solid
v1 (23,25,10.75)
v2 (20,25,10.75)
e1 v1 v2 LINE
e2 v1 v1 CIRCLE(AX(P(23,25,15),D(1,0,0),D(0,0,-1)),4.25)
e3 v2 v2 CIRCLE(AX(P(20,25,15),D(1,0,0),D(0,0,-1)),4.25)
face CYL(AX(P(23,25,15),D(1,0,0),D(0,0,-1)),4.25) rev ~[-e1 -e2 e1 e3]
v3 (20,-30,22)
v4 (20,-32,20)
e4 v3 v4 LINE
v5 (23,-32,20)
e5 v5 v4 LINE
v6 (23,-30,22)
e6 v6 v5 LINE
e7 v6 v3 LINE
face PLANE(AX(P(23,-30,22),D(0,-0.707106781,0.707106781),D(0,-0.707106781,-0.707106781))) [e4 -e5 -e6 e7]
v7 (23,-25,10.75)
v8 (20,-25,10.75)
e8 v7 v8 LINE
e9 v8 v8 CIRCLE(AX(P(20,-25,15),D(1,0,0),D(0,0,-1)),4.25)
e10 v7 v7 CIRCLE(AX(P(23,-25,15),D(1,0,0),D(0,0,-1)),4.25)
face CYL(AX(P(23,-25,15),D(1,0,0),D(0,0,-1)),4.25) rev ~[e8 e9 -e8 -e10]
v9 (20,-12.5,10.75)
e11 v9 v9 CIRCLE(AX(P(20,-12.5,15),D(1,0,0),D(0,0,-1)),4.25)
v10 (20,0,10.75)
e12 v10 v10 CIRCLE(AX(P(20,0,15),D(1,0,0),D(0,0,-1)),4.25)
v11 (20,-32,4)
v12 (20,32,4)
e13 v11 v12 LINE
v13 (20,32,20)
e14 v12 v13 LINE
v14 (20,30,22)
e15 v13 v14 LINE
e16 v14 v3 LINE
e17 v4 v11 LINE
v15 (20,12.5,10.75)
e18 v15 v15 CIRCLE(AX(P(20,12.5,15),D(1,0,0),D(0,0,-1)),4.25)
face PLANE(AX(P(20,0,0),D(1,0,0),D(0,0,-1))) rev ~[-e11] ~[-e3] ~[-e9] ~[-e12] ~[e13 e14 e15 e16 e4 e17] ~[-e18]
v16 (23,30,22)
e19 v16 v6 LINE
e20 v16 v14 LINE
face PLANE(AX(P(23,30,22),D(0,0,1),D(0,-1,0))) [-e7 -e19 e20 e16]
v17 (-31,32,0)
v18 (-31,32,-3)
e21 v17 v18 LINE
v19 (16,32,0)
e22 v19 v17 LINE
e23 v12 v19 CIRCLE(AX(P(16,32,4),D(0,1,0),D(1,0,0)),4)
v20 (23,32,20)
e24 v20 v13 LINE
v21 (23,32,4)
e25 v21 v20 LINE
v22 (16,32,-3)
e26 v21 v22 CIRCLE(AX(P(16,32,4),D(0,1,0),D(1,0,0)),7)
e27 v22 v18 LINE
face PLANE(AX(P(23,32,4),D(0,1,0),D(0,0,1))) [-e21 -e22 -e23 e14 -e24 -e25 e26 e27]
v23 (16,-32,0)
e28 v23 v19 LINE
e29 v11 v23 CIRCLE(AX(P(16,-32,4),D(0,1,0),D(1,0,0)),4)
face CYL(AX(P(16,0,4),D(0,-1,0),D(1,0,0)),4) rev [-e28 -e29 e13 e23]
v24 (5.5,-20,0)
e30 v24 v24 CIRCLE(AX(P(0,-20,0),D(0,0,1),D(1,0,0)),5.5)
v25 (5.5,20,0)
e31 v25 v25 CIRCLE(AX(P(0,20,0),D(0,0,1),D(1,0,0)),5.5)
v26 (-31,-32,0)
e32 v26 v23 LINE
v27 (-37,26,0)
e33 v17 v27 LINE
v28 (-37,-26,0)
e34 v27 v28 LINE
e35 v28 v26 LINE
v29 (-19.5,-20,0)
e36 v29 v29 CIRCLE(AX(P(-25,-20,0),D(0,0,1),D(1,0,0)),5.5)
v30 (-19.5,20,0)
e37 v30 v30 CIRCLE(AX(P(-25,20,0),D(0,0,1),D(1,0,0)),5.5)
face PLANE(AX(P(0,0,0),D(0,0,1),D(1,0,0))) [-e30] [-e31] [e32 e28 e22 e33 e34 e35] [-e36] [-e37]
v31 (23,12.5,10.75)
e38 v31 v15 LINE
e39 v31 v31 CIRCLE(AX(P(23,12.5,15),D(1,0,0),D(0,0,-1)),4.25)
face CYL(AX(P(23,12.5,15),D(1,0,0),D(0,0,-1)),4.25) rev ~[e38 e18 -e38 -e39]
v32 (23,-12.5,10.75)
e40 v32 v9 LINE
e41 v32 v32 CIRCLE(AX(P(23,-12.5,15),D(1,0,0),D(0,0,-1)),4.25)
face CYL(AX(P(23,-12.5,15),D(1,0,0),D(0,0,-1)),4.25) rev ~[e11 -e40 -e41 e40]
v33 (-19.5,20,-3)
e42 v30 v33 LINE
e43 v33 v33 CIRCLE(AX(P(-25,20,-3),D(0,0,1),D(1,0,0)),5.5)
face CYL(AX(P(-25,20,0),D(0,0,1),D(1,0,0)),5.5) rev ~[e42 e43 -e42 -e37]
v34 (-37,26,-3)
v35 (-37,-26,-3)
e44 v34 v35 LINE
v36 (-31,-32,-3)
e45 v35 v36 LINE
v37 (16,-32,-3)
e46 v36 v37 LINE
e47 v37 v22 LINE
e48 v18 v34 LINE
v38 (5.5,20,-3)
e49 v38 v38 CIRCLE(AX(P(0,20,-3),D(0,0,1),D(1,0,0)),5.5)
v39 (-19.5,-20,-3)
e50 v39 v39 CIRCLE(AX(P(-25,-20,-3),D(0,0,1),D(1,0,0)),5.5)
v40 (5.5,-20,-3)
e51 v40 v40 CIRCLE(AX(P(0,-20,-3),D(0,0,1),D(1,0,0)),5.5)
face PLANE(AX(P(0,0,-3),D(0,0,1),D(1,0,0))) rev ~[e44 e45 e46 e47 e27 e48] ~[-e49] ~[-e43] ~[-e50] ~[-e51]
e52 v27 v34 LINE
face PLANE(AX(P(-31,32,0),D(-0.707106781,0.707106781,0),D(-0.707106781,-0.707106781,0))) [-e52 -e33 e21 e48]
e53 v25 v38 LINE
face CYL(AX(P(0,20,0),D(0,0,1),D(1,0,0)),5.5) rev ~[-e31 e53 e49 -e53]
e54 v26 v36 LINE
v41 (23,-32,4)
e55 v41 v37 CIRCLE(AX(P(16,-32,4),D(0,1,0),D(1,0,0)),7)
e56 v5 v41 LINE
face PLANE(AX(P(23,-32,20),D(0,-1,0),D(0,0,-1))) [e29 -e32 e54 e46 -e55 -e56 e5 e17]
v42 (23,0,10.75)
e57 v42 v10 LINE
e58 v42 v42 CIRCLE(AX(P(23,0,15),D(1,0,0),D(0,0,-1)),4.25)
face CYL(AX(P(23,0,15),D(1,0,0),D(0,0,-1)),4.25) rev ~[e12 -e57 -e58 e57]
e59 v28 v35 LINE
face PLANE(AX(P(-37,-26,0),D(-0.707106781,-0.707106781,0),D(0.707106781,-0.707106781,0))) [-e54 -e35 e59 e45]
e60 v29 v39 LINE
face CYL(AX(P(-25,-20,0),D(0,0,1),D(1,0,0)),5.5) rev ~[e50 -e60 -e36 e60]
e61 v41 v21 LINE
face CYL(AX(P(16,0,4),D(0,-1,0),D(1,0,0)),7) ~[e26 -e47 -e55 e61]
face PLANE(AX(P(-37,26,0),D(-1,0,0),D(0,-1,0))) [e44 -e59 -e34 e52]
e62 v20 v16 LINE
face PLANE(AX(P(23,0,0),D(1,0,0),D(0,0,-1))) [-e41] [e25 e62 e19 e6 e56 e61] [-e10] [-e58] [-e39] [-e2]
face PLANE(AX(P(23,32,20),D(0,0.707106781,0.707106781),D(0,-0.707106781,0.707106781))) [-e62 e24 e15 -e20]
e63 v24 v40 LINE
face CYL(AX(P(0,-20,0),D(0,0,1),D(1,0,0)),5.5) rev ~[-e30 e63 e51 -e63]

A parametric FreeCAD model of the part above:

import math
import FreeCAD as App
import Part
import Sketcher
from FreeCAD import Vector

doc = App.newDocument("Part")
body = doc.addObject("PartDesign::Body", "Body")

sketch1 = body.newObject("Sketcher::SketchObject", "Sketch")
sketch1.AttachmentSupport = (doc.getObject("XY_Plane"), [""])
sketch1.MapMode = "FlatFace"
sketch1.addGeometry(Part.LineSegment(Vector(-31, 32, 0), Vector(-37, 26, 0)), False)
sketch1.addGeometry(Part.LineSegment(Vector(-37, 26, 0), Vector(-37, -26, 0)), False)
sketch1.addGeometry(Part.LineSegment(Vector(-37, -26, 0), Vector(-31, -32, 0)), False)
sketch1.addGeometry(Part.LineSegment(Vector(-31, -32, 0), Vector(16, -32, 0)), False)
sketch1.addGeometry(Part.LineSegment(Vector(16, -32, 0), Vector(16, 32, 0)), False)
sketch1.addGeometry(Part.LineSegment(Vector(16, 32, 0), Vector(-31, 32, 0)), False)
sketch1.addGeometry(Part.Circle(Vector(-25, -20, 0), Vector(0, 0, 1), 5.5), False)
sketch1.addGeometry(Part.Circle(Vector(0, -20, 0), Vector(0, 0, 1), 5.5), False)
sketch1.addGeometry(Part.Circle(Vector(-25, 20, 0), Vector(0, 0, 1), 5.5), False)
sketch1.addGeometry(Part.Circle(Vector(0, 20, 0), Vector(0, 0, 1), 5.5), False)
sketch1.addConstraint(Sketcher.Constraint("Coincident", 0, 2, 1, 1))
sketch1.addConstraint(Sketcher.Constraint("Coincident", 1, 2, 2, 1))
sketch1.addConstraint(Sketcher.Constraint("Coincident", 2, 2, 3, 1))
sketch1.addConstraint(Sketcher.Constraint("Coincident", 3, 2, 4, 1))
sketch1.addConstraint(Sketcher.Constraint("Coincident", 4, 2, 5, 1))
sketch1.addConstraint(Sketcher.Constraint("Coincident", 5, 2, 0, 1))
sketch1.addConstraint(Sketcher.Constraint("Vertical", 1))
sketch1.addConstraint(Sketcher.Constraint("Horizontal", 3))
sketch1.addConstraint(Sketcher.Constraint("Vertical", 4))
sketch1.addConstraint(Sketcher.Constraint("Horizontal", 5))
sketch1.addConstraint(Sketcher.Constraint("Equal", 6, 7))
sketch1.addConstraint(Sketcher.Constraint("Equal", 7, 8))
sketch1.addConstraint(Sketcher.Constraint("Equal", 8, 9))
sketch1.addConstraint(Sketcher.Constraint("Symmetric", 7, 3, 9, 3, -1, 1))
sketch1.addConstraint(Sketcher.Constraint("Symmetric", 6, 3, 8, 3, -1))
sketch1.addConstraint(Sketcher.Constraint("Symmetric", 2, 2, 5, 2, -1))
sketch1.addConstraint(Sketcher.Constraint("PointOnObject", 7, 3, -2))
sketch1.addConstraint(Sketcher.Constraint("Perpendicular", 0, 2))
sketch1.addConstraint(Sketcher.Constraint("Horizontal", 6, 3, 7, 3))
sketch1.addConstraint(Sketcher.Constraint("Equal", 0, 2))
sketch1.addConstraint(Sketcher.Constraint("Diameter", 6, 11.0))
sketch1.addConstraint(Sketcher.Constraint("DistanceX", 3, 1, 3, 2, 47.0))
sketch1.addConstraint(Sketcher.Constraint("DistanceY", 1, 2, 1, 1, 52.0))
sketch1.addConstraint(Sketcher.Constraint("DistanceY", 4, 1, 4, 2, 64.0))
sketch1.addConstraint(Sketcher.Constraint("DistanceX", 6, 3, -1, 1, 25.0))
sketch1.addConstraint(Sketcher.Constraint("DistanceY", 6, 3, -1, 1, 20.0))
sketch1.addConstraint(Sketcher.Constraint("DistanceX", 0, 2, -1, 1, 37.0))
pad1 = body.newObject("PartDesign::Pad", "Pad")
pad1.Profile = sketch1
pad1.Length = 3
pad1.Reversed = True

sketch2 = body.newObject("Sketcher::SketchObject", "Sketch001")
sketch2.AttachmentSupport = (doc.getObject("XZ_Plane"), [""])
sketch2.MapMode = "FlatFace"
sketch2.addGeometry(Part.ArcOfCircle(Part.Circle(Vector(16, 4, 0), Vector(0, 0, 1), 4), math.radians(-90), math.radians(0)), False)
sketch2.addGeometry(Part.LineSegment(Vector(20, 4, 0), Vector(23, 4, 0)), False)
sketch2.addGeometry(Part.ArcOfCircle(Part.Circle(Vector(16, 4, 0), Vector(0, 0, 1), 7), math.radians(-90), math.radians(0)), False)
sketch2.addGeometry(Part.LineSegment(Vector(16, -3, 0), Vector(16, 0, 0)), False)
sketch2.addConstraint(Sketcher.Constraint("Coincident", 0, 2, 1, 1))
sketch2.addConstraint(Sketcher.Constraint("Coincident", 1, 2, 2, 2))
sketch2.addConstraint(Sketcher.Constraint("Coincident", 2, 1, 3, 1))
sketch2.addConstraint(Sketcher.Constraint("Coincident", 3, 2, 0, 1))
sketch2.addConstraint(Sketcher.Constraint("Horizontal", 1))
sketch2.addConstraint(Sketcher.Constraint("Vertical", 3))
sketch2.addConstraint(Sketcher.Constraint("Coincident", 2, 3, 0, 3))
sketch2.addConstraint(Sketcher.Constraint("PointOnObject", 3, 2, -1))
sketch2.addConstraint(Sketcher.Constraint("Horizontal", 2, 3, 0, 2))
sketch2.addConstraint(Sketcher.Constraint("Vertical", 0, 3, 2, 1))
sketch2.addConstraint(Sketcher.Constraint("Radius", 0, 4.0))
sketch2.addConstraint(Sketcher.Constraint("Radius", 2, 7.0))
sketch2.addConstraint(Sketcher.Constraint("DistanceX", -1, 1, 0, 3, 16.0))
pad2 = body.newObject("PartDesign::Pad", "Pad001")
pad2.Profile = sketch2
pad2.Length = 64
pad2.Midplane = True

sketch3 = body.newObject("Sketcher::SketchObject", "Sketch002")
sketch3.AttachmentSupport = (doc.getObject("YZ_Plane"), [""])
sketch3.MapMode = "FlatFace"
sketch3.AttachmentOffset = App.Placement(Vector(0, 0, 23), App.Rotation())
sketch3.addGeometry(Part.LineSegment(Vector(30, 22, 0), Vector(-30, 22, 0)), False)
sketch3.addGeometry(Part.LineSegment(Vector(-30, 22, 0), Vector(-32, 20, 0)), False)
sketch3.addGeometry(Part.LineSegment(Vector(-32, 20, 0), Vector(-32, 4, 0)), False)
sketch3.addGeometry(Part.LineSegment(Vector(-32, 4, 0), Vector(32, 4, 0)), False)
sketch3.addGeometry(Part.LineSegment(Vector(32, 4, 0), Vector(32, 20, 0)), False)
sketch3.addGeometry(Part.LineSegment(Vector(32, 20, 0), Vector(30, 22, 0)), False)
sketch3.addGeometry(Part.Circle(Vector(-25, 15, 0), Vector(0, 0, 1), 4.25), False)
sketch3.addGeometry(Part.Circle(Vector(-12.5, 15, 0), Vector(0, 0, 1), 4.25), False)
sketch3.addGeometry(Part.Circle(Vector(0, 15, 0), Vector(0, 0, 1), 4.25), False)
sketch3.addGeometry(Part.Circle(Vector(12.5, 15, 0), Vector(0, 0, 1), 4.25), False)
sketch3.addGeometry(Part.Circle(Vector(25, 15, 0), Vector(0, 0, 1), 4.25), False)
sketch3.addConstraint(Sketcher.Constraint("Coincident", 0, 2, 1, 1))
sketch3.addConstraint(Sketcher.Constraint("Coincident", 1, 2, 2, 1))
sketch3.addConstraint(Sketcher.Constraint("Coincident", 2, 2, 3, 1))
sketch3.addConstraint(Sketcher.Constraint("Coincident", 3, 2, 4, 1))
sketch3.addConstraint(Sketcher.Constraint("Coincident", 4, 2, 5, 1))
sketch3.addConstraint(Sketcher.Constraint("Coincident", 5, 2, 0, 1))
sketch3.addConstraint(Sketcher.Constraint("Horizontal", 0))
sketch3.addConstraint(Sketcher.Constraint("Vertical", 2))
sketch3.addConstraint(Sketcher.Constraint("Horizontal", 3))
sketch3.addConstraint(Sketcher.Constraint("Vertical", 4))
sketch3.addConstraint(Sketcher.Constraint("Equal", 6, 7))
sketch3.addConstraint(Sketcher.Constraint("Equal", 7, 8))
sketch3.addConstraint(Sketcher.Constraint("Equal", 8, 9))
sketch3.addConstraint(Sketcher.Constraint("Equal", 9, 10))
sketch3.addConstraint(Sketcher.Constraint("Symmetric", 7, 3, 9, 3, -2))
sketch3.addConstraint(Sketcher.Constraint("Symmetric", 6, 3, 10, 3, -2))
sketch3.addConstraint(Sketcher.Constraint("Symmetric", 1, 2, 4, 2, -2))
sketch3.addConstraint(Sketcher.Constraint("PointOnObject", 8, 3, -2))
sketch3.addConstraint(Sketcher.Constraint("Perpendicular", 1, 5))
sketch3.addConstraint(Sketcher.Constraint("Horizontal", 6, 3, 7, 3))
sketch3.addConstraint(Sketcher.Constraint("Horizontal", 7, 3, 8, 3))
sketch3.addConstraint(Sketcher.Constraint("Equal", 1, 5))
sketch3.addConstraint(Sketcher.Constraint("Diameter", 6, 8.5))
sketch3.addConstraint(Sketcher.Constraint("DistanceX", 0, 2, 0, 1, 60.0))
sketch3.addConstraint(Sketcher.Constraint("DistanceX", 3, 1, 3, 2, 64.0))
sketch3.addConstraint(Sketcher.Constraint("DistanceY", 2, 2, 2, 1, 16.0))
sketch3.addConstraint(Sketcher.Constraint("DistanceX", 6, 3, -1, 1, 25.0))
sketch3.addConstraint(Sketcher.Constraint("DistanceY", -1, 1, 6, 3, 15.0))
sketch3.addConstraint(Sketcher.Constraint("DistanceY", -1, 1, 0, 2, 22.0))
sketch3.addConstraint(Sketcher.Constraint("DistanceX", 7, 3, 9, 3, 25.0))
pad3 = body.newObject("PartDesign::Pad", "Pad002")
pad3.Profile = sketch3
pad3.Length = 3
pad3.Reversed = True

doc.recompute()
